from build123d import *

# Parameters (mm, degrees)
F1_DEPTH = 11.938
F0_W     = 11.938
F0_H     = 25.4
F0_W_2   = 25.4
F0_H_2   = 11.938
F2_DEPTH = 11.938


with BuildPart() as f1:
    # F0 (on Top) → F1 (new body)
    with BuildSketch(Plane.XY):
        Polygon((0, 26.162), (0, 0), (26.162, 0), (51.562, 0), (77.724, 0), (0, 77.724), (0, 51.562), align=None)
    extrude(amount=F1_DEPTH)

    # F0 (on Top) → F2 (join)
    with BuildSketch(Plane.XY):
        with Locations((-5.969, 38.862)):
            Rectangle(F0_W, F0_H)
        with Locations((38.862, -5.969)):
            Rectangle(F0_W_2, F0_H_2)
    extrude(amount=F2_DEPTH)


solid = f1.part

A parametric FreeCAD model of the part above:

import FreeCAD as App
import Part
import Sketcher

V = App.Vector
Q = App.Units.Quantity


def add_polygon(sketch, points):
    """Adds a closed chain of lines whose ends are joined by coincident constraints."""
    first, n = sketch.GeometryCount, len(points)
    for a, b in zip(points, points[1:] + points[:1]):
        sketch.addGeometry(Part.LineSegment(App.Vector(*a, 0), App.Vector(*b, 0)), False)
    for i in range(n):
        sketch.addConstraint(Sketcher.Constraint("Coincident", first + i, 2, first + (i + 1) % n, 1))

doc = App.newDocument("Part")
params = doc.addObject("Spreadsheet::Sheet", "Params")
for row, (alias, value) in enumerate([
    ("sketch1_width", "3.06 in"),
    ("pad1_length", "0.47 in"),
    ("sketch2_width", "1 in"),
    ("sketch2_width2", "0.47 in"),
    ("pad2_length", "0.47 in"),
], start=1):
    params.set(f"A{row}", alias)
    params.set(f"B{row}", "=" + value)
    params.setAlias(f"B{row}", alias)

body = doc.addObject("PartDesign::Body", "Body")

sketch1 = body.newObject("Sketcher::SketchObject", "Sketch")
sketch1.AttachmentSupport = (doc.getObject("XY_Plane"), [""])
sketch1.MapMode = "FlatFace"
add_polygon(sketch1, [(0, 0), (77.724, 0), (0, 77.724)])
sketch1.addConstraint([
    Sketcher.Constraint("Horizontal", 0),
    Sketcher.Constraint("Vertical", 2),
    Sketcher.Constraint("Coincident", 2, 2, -1, 1),
    Sketcher.Constraint("Equal", 0, 2),
    Sketcher.Constraint("DistanceX", 0, 1, 0, 2, Q("3.06 in")),
])
sketch1.setExpression("Constraints[7]", "Params.sketch1_width")
pad1 = body.newObject("PartDesign::Pad", "Pad")
pad1.Profile = sketch1
pad1.setExpression("Length", "Params.pad1_length")

sketch2 = body.newObject("Sketcher::SketchObject", "Sketch001")
sketch2.AttachmentSupport = (doc.getObject("XY_Plane"), [""])
sketch2.MapMode = "FlatFace"
add_polygon(sketch2, [(-11.938, 51.562), (-11.938, 26.162), (0, 26.162), (0, 51.562)])
add_polygon(sketch2, [(26.162, 0), (26.162, -11.938), (51.562, -11.938), (51.562, 0)])
sketch2.addConstraint([
    Sketcher.Constraint("Vertical", 0),
    Sketcher.Constraint("Horizontal", 1),
    Sketcher.Constraint("Vertical", 2),
    Sketcher.Constraint("Horizontal", 3),
    Sketcher.Constraint("Vertical", 4),
    Sketcher.Constraint("Horizontal", 5),
    Sketcher.Constraint("Vertical", 6),
    Sketcher.Constraint("Horizontal", 7),
    Sketcher.Constraint("PointOnObject", 1, 2, -2),
    Sketcher.Constraint("PointOnObject", 6, 2, -1),
    Sketcher.Constraint("Equal", 7, 0),
    Sketcher.Constraint("Equal", 3, 4),
    Sketcher.Constraint("DistanceX", 5, 1, 5, 2, Q("1 in")),
    Sketcher.Constraint("DistanceX", 1, 1, 1, 2, Q("0.47 in")),
    Sketcher.Constraint("DistanceY", 4, 2, 1, 2, Q("1.5 in")),
    Sketcher.Constraint("DistanceX", 0, 2, 4, 2, Q("1.5 in")),
])
sketch2.setExpression("Constraints[20]", "Params.sketch2_width")
sketch2.setExpression("Constraints[21]", "Params.sketch2_width2")
pad2 = body.newObject("PartDesign::Pad", "Pad001")
pad2.Profile = sketch2
pad2.setExpression("Length", "Params.pad2_length")

doc.recompute()
